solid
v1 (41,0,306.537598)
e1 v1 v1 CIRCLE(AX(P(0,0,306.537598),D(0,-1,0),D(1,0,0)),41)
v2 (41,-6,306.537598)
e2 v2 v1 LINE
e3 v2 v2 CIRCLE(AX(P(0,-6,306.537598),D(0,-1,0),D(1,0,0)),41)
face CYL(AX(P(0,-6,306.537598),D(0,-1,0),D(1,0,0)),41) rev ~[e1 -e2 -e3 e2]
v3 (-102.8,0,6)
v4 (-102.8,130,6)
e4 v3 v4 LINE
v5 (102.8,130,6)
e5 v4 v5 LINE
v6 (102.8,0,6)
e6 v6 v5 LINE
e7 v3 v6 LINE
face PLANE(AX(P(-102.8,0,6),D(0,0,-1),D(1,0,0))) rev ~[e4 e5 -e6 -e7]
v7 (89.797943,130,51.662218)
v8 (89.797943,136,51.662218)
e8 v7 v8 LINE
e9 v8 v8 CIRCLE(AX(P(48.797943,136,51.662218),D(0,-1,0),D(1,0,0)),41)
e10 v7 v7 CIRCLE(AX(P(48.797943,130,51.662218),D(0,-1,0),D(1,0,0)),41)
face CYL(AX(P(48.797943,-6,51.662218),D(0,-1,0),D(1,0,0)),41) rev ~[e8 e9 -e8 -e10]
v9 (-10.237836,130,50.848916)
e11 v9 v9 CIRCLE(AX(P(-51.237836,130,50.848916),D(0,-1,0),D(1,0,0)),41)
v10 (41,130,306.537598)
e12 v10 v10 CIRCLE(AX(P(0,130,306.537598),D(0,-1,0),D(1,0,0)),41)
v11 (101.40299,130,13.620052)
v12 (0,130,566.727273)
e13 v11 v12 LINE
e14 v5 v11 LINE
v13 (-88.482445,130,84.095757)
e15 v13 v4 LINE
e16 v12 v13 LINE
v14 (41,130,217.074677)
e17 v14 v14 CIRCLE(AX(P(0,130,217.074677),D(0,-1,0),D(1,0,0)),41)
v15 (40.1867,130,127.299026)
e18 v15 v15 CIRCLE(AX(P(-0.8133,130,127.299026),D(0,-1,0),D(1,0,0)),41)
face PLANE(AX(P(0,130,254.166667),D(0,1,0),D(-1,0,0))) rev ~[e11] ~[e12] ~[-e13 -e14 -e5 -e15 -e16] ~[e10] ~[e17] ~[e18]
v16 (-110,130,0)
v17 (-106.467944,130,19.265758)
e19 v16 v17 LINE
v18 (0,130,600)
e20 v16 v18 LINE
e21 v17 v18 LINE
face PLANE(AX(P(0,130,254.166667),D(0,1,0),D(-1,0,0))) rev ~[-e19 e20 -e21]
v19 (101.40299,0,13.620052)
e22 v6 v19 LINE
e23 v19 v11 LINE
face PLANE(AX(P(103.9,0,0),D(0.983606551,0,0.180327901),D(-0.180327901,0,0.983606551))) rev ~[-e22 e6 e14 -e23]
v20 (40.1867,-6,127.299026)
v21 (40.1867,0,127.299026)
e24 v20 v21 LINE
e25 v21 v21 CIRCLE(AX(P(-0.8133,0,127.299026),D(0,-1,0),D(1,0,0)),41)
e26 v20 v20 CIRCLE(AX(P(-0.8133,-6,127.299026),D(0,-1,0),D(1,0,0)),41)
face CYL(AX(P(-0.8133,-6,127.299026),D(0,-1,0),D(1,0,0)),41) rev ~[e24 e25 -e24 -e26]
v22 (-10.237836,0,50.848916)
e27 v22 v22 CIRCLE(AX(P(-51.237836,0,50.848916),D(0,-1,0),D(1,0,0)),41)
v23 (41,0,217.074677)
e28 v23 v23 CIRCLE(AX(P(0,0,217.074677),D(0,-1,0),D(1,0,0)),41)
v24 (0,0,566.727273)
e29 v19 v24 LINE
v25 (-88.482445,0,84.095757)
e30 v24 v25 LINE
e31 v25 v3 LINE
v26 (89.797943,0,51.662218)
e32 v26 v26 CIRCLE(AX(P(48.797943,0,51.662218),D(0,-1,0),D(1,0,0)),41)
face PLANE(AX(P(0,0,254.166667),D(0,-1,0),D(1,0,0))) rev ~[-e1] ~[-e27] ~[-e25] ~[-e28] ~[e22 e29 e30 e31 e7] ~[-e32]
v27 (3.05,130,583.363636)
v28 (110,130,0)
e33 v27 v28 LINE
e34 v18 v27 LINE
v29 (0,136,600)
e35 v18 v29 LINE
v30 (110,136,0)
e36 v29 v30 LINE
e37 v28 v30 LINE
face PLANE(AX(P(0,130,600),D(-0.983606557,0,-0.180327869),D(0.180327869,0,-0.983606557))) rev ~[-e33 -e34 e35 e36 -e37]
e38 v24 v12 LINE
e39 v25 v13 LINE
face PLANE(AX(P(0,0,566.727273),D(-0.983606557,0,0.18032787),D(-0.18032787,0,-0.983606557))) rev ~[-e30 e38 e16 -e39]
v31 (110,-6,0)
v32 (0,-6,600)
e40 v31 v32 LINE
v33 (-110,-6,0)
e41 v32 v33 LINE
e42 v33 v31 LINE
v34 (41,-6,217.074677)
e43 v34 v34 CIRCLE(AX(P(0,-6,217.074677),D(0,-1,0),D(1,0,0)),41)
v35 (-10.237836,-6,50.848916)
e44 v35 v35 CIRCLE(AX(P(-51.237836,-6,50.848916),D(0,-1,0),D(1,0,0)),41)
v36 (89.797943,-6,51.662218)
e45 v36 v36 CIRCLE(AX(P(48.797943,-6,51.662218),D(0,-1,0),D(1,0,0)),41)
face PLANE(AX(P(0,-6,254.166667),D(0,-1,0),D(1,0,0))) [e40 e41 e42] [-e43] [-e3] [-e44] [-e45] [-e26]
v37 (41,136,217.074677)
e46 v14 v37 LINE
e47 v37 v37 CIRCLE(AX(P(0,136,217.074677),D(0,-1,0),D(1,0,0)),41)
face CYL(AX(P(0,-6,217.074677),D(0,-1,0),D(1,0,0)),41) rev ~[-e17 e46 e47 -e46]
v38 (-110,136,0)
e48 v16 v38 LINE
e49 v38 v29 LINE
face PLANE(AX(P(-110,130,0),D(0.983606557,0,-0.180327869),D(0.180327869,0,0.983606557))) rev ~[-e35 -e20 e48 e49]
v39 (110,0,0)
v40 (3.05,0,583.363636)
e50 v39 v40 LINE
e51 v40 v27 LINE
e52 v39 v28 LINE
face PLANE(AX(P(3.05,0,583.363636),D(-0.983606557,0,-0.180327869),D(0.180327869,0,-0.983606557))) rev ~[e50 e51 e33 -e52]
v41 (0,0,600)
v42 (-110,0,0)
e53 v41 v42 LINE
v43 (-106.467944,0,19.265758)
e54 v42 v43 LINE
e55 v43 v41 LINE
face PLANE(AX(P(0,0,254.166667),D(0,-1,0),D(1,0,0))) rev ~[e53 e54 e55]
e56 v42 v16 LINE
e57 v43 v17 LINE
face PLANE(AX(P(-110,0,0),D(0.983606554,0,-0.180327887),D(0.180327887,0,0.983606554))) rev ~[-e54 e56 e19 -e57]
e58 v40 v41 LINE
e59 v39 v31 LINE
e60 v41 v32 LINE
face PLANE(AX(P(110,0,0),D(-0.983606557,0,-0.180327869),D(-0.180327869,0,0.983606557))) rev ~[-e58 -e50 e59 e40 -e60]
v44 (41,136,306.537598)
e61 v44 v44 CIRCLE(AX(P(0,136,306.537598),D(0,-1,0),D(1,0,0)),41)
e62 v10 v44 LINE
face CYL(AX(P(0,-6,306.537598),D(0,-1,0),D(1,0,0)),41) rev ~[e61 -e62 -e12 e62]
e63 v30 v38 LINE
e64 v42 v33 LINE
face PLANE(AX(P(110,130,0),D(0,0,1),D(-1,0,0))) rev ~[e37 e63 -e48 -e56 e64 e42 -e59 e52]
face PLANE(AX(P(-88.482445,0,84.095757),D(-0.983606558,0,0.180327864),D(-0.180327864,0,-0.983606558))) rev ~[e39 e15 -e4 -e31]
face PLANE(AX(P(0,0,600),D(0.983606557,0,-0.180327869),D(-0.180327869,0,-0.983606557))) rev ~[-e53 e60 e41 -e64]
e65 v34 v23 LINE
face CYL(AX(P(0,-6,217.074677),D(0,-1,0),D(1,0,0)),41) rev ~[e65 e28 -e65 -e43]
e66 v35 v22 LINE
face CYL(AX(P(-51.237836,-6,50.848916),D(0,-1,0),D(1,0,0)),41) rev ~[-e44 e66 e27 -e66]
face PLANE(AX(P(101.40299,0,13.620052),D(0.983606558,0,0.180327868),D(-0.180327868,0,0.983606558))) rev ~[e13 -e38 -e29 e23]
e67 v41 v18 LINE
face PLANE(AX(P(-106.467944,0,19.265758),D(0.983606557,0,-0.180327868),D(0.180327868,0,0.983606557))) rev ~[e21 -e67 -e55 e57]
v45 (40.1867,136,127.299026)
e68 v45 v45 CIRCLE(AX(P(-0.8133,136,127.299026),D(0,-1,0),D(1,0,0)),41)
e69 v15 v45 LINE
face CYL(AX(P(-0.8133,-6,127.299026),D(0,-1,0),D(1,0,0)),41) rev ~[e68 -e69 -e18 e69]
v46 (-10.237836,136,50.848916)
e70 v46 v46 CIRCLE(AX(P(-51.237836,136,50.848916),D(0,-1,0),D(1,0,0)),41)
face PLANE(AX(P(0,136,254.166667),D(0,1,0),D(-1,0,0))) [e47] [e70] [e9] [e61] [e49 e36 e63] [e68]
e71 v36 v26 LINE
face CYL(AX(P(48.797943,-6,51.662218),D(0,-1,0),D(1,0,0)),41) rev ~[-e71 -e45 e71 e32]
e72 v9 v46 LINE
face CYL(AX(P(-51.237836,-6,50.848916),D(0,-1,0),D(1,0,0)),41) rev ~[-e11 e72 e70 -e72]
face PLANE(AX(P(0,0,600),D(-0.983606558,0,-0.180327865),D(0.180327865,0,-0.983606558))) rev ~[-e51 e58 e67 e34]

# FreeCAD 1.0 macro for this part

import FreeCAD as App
import Part
import Sketcher
from FreeCAD import Vector


def add_polygon(sketch, points):
    """Adds a closed chain of lines whose ends are joined by coincident constraints."""
    first, n = sketch.GeometryCount, len(points)
    for a, b in zip(points, points[1:] + points[:1]):
        sketch.addGeometry(Part.LineSegment(App.Vector(*a, 0), App.Vector(*b, 0)), False)
    for i in range(n):
        sketch.addConstraint(Sketcher.Constraint("Coincident", first + i, 2, first + (i + 1) % n, 1))

doc = App.newDocument("Part")
body = doc.addObject("PartDesign::Body", "Body")

# Sketch on XZ plane
sketch1 = doc.addObject("Sketcher::SketchObject", "Sketch")
body.addObject(sketch1)
sketch1.AttachmentSupport = (doc.XZ_Plane, [""])
sketch1.MapMode = "FlatFace"
add_polygon(sketch1, [(-110, 0), (110, 0), (0, 600)])  # lines 0-2
sketch1.addConstraint(Sketcher.Constraint("Horizontal", 0))
sketch1.addConstraint(Sketcher.Constraint("Symmetric", 0, 2, 2, 2, -1, 1))
sketch1.addConstraint(Sketcher.Constraint("PointOnObject", 1, 2, -2))
sketch1.addConstraint(Sketcher.Constraint("DistanceX", 0, 1, 0, 2, 220.0))
sketch1.addConstraint(Sketcher.Constraint("Distance", 1, 610.0))
pad1 = doc.addObject("PartDesign::Pad", "Pad")
body.addObject(pad1)
pad1.Profile = sketch1
pad1.Length = 6

# Sketch on XZ plane
sketch2 = doc.addObject("Sketcher::SketchObject", "Sketch001")
body.addObject(sketch2)
sketch2.AttachmentSupport = (doc.XZ_Plane, [""])
sketch2.MapMode = "FlatFace"
add_polygon(sketch2, [(-110, 0), (-106.467944, 19.265758), (0, 600), (3.05, 583.363636), (0, 566.727273), (-88.482445, 84.095757), (-103.9, 0)])  # lines 0-6
sketch2.addConstraint(Sketcher.Constraint("Horizontal", 6))
sketch2.addConstraint(Sketcher.Constraint("PointOnObject", 1, 2, -2))
sketch2.addConstraint(Sketcher.Constraint("PointOnObject", 3, 2, -2))
sketch2.addConstraint(Sketcher.Constraint("PointOnObject", 5, 2, -1))
sketch2.addConstraint(Sketcher.Constraint("Parallel", 0, 1))
sketch2.addConstraint(Sketcher.Constraint("Parallel", 1, 3))
sketch2.addConstraint(Sketcher.Constraint("Parallel", 3, 4))
sketch2.addConstraint(Sketcher.Constraint("Parallel", 4, 5))
sketch2.addConstraint(Sketcher.Constraint("Equal", 2, 3))
sketch2.addConstraint(Sketcher.Constraint("DistanceX", 6, 2, 6, 1, 6.1))
sketch2.addConstraint(Sketcher.Constraint("DistanceY", -1, 1, 1, 2, 600.0))
sketch2.addConstraint(Sketcher.Constraint("DistanceX", 6, 2, -1, 1, 110.0))
sketch2.addConstraint(Sketcher.Constraint("DistanceY", 0, 2, 4, 2, 64.829999))
sketch2.addConstraint(Sketcher.Constraint("DistanceY", -1, 1, 0, 2, 19.265758))
pad2 = doc.addObject("PartDesign::Pad", "Pad001")
body.addObject(pad2)
pad2.Profile = sketch2
pad2.Length = 130
pad2.Reversed = True

# Sketch on XZ plane
sketch3 = doc.addObject("Sketcher::SketchObject", "Sketch002")
body.addObject(sketch3)
sketch3.AttachmentSupport = (doc.XZ_Plane, [""])
sketch3.MapMode = "FlatFace"
add_polygon(sketch3, [(0, 566.727273), (3.05, 583.363636), (110, 0), (103.9, 0), (101.40299, 13.620052)])  # lines 0-4
sketch3.addConstraint(Sketcher.Constraint("Horizontal", 2))
sketch3.addConstraint(Sketcher.Constraint("PointOnObject", 1, 2, -1))
sketch3.addConstraint(Sketcher.Constraint("PointOnObject", 4, 2, -2))
sketch3.addConstraint(Sketcher.Constraint("Parallel", 1, 3))
sketch3.addConstraint(Sketcher.Constraint("Parallel", 3, 4))
sketch3.addConstraint(Sketcher.Constraint("DistanceX", 2, 2, 2, 1, 6.1))
sketch3.addConstraint(Sketcher.Constraint("DistanceX", -1, 1, 1, 2, 110.0))
sketch3.addConstraint(Sketcher.Constraint("DistanceX", -1, 1, 0, 2, 3.05))
sketch3.addConstraint(Sketcher.Constraint("DistanceX", -1, 1, 3, 2, 101.40299))
sketch3.addConstraint(Sketcher.Constraint("DistanceY", -1, 1, 3, 2, 13.620052))
pad3 = doc.addObject("PartDesign::Pad", "Pad002")
body.addObject(pad3)
pad3.Profile = sketch3
pad3.Length = 130
pad3.Reversed = True

# Sketch on XZ plane
sketch4 = doc.addObject("Sketcher::SketchObject", "Sketch003")
body.addObject(sketch4)
sketch4.AttachmentSupport = (doc.XZ_Plane, [""])
sketch4.MapMode = "FlatFace"
add_polygon(sketch4, [(102.8, 6), (103.9, 0), (-103.9, 0), (-102.8, 6)])  # lines 0-3
sketch4.addConstraint(Sketcher.Constraint("Horizontal", 1))
sketch4.addConstraint(Sketcher.Constraint("Horizontal", 3))
sketch4.addConstraint(Sketcher.Constraint("Symmetric", 0, 2, 1, 2, -1, 1))
sketch4.addConstraint(Sketcher.Constraint("Equal", 0, 2))
sketch4.addConstraint(Sketcher.Constraint("DistanceX", 1, 2, 1, 1, 207.8))
sketch4.addConstraint(Sketcher.Constraint("DistanceX", 3, 1, 3, 2, 205.6))
sketch4.addConstraint(Sketcher.Constraint("DistanceY", -1, 1, 2, 2, 6.0))
pad4 = doc.addObject("PartDesign::Pad", "Pad003")
body.addObject(pad4)
pad4.Profile = sketch4
pad4.Length = 130
pad4.Reversed = True

# Sketch on XZ plane
sketch5 = doc.addObject("Sketcher::SketchObject", "Sketch004")
body.addObject(sketch5)
sketch5.AttachmentSupport = (doc.XZ_Plane, [""])
sketch5.MapMode = "FlatFace"
sketch5.AttachmentOffset = App.Placement(Vector(0, 0, -130), App.Rotation())
add_polygon(sketch5, [(-110, 0), (0, 600), (110, 0)])  # lines 0-2
sketch5.addConstraint(Sketcher.Constraint("Horizontal", 2))
sketch5.addConstraint(Sketcher.Constraint("Symmetric", 1, 2, 2, 2, -1, 1))
sketch5.addConstraint(Sketcher.Constraint("PointOnObject", 0, 2, -2))
sketch5.addConstraint(Sketcher.Constraint("DistanceX", 2, 2, 2, 1, 220.0))
sketch5.addConstraint(Sketcher.Constraint("Distance", 0, 610.0))
pad5 = doc.addObject("PartDesign::Pad", "Pad004")
body.addObject(pad5)
pad5.Profile = sketch5
pad5.Length = 6
pad5.Reversed = True

# Sketch on XZ plane
sketch6 = doc.addObject("Sketcher::SketchObject", "Sketch005")
body.addObject(sketch6)
sketch6.AttachmentSupport = (doc.XZ_Plane, [""])
sketch6.MapMode = "FlatFace"
sketch6.AttachmentOffset = App.Placement(Vector(0, 0, 6), App.Rotation())
sketch6.addGeometry(Part.Circle(Vector(48.797943, 51.662218, 0), Vector(0, 0, 1), 41), False)
sketch6.addGeometry(Part.Circle(Vector(-51.237836, 50.848916, 0), Vector(0, 0, 1), 41), False)
sketch6.addGeometry(Part.Circle(Vector(-0.8133, 127.299026, 0), Vector(0, 0, 1), 41), False)
sketch6.addGeometry(Part.Circle(Vector(0, 217.074677, 0), Vector(0, 0, 1), 41), False)
sketch6.addGeometry(Part.Circle(Vector(0, 306.537598, 0), Vector(0, 0, 1), 41), False)
sketch6.addConstraint(Sketcher.Constraint("Equal", 0, 1))
sketch6.addConstraint(Sketcher.Constraint("Equal", 1, 2))
sketch6.addConstraint(Sketcher.Constraint("Equal", 2, 3))
sketch6.addConstraint(Sketcher.Constraint("Equal", 3, 4))
sketch6.addConstraint(Sketcher.Constraint("PointOnObject", 3, 3, -2))
sketch6.addConstraint(Sketcher.Constraint("PointOnObject", 4, 3, -2))
sketch6.addConstraint(Sketcher.Constraint("Diameter", 0, 82.0))
sketch6.addConstraint(Sketcher.Constraint("DistanceX", 2, 3, -1, 1, 0.8133))
sketch6.addConstraint(Sketcher.Constraint("DistanceY", -1, 1, 4, 3, 306.537598))
sketch6.addConstraint(Sketcher.Constraint("DistanceY", -1, 1, 0, 3, 51.662218))
sketch6.addConstraint(Sketcher.Constraint("DistanceX", 1, 3, 0, 3, 100.035779))
sketch6.addConstraint(Sketcher.Constraint("DistanceY", 0, 3, 2, 3, 75.636808))
sketch6.addConstraint(Sketcher.Constraint("DistanceY", 1, 3, 2, 3, 76.45011))
sketch6.addConstraint(Sketcher.Constraint("DistanceY", 2, 3, 3, 3, 89.775651))
sketch6.addConstraint(Sketcher.Constraint("DistanceX", -1, 1, 0, 3, 48.797943))
pocket1 = doc.addObject("PartDesign::Pocket", "Pocket")
body.addObject(pocket1)
pocket1.Profile = sketch6
pocket1.Length = 309.88

doc.recompute()
